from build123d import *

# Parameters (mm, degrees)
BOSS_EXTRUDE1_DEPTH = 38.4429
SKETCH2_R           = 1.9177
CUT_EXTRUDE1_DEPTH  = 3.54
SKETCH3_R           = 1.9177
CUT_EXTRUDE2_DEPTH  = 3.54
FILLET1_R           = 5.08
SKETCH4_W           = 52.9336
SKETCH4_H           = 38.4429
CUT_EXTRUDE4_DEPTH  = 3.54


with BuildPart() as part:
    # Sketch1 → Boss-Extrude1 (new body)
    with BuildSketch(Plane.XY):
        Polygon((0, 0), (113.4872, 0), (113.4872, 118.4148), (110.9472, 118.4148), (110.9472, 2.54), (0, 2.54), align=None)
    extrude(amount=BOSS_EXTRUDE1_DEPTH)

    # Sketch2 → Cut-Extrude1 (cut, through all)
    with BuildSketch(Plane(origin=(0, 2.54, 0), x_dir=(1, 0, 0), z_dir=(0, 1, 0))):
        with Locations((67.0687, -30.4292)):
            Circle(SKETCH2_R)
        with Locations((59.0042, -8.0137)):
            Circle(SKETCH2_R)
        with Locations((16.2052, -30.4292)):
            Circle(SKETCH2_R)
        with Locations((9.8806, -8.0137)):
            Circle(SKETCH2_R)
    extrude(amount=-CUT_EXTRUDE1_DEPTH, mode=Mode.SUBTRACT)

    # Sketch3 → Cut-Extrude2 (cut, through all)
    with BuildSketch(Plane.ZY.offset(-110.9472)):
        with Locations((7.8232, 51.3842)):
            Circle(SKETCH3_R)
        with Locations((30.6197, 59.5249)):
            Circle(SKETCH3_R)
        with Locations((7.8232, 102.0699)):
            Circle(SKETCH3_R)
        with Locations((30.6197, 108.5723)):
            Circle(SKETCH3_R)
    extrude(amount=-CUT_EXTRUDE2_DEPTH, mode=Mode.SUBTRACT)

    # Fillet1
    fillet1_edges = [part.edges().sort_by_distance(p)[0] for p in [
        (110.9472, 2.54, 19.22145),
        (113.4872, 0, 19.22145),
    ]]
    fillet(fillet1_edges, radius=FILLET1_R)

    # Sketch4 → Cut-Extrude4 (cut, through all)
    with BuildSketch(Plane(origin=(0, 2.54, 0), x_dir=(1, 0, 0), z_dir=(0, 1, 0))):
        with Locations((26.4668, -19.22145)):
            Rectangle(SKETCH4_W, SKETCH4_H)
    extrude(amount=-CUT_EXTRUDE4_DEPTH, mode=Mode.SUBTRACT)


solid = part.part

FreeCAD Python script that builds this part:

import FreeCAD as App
import Part
import Sketcher
Q = App.Units.Quantity


def edges_at(feature, points):
    """Names of the edges that pass closest to the given points."""
    edges = feature.Shape.Edges
    near = lambda p: min(range(len(edges)), key=lambda i: edges[i].distToShape(Part.Vertex(*p))[0])
    return sorted({f"Edge{near(p) + 1}" for p in points})


def add_polygon(sketch, points):
    """Adds a closed chain of lines whose ends are joined by coincident constraints."""
    first, n = sketch.GeometryCount, len(points)
    for a, b in zip(points, points[1:] + points[:1]):
        sketch.addGeometry(Part.LineSegment(App.Vector(*a, 0), App.Vector(*b, 0)), False)
    for i in range(n):
        sketch.addConstraint(Sketcher.Constraint("Coincident", first + i, 2, first + (i + 1) % n, 1))

doc = App.newDocument("Part")
params = doc.addObject("Spreadsheet::Sheet", "Params")
for row, (alias, value) in enumerate([
    ("sketch1_width", "0.1 in"),
    ("sketch1_width2", "4.468 in"),
    ("sketch1_height", "4.662 in"),
    ("pad1_length", "1.5135 in"),
    ("sketch2_diameter", "0.151 in"),
    ("sketch3_diameter", "0.151 in"),
    ("fillet_radius", "0.2 in"),
    ("sketch4_width", "2.084 in"),
], start=1):
    params.set(f"A{row}", alias)
    params.set(f"B{row}", "=" + value)
    params.setAlias(f"B{row}", alias)

body = doc.addObject("PartDesign::Body", "Body")

# Sketch on XY plane
sketch1 = doc.addObject("Sketcher::SketchObject", "Sketch")
body.addObject(sketch1)
sketch1.AttachmentSupport = (doc.XY_Plane, [""])
sketch1.MapMode = "FlatFace"
add_polygon(sketch1, [(0, 0), (113.5, 0), (113.5, 118.4), (110.9, 118.4), (110.9, 2.5), (0, 2.5)])  # lines 0-5
sketch1.addConstraint(Sketcher.Constraint("Horizontal", 0))
sketch1.addConstraint(Sketcher.Constraint("Vertical", 1))
sketch1.addConstraint(Sketcher.Constraint("Horizontal", 2))
sketch1.addConstraint(Sketcher.Constraint("Vertical", 3))
sketch1.addConstraint(Sketcher.Constraint("Horizontal", 4))
sketch1.addConstraint(Sketcher.Constraint("Vertical", 5))
sketch1.addConstraint(Sketcher.Constraint("Coincident", 5, 2, -1, 1))
sketch1.addConstraint(Sketcher.Constraint("Equal", 2, 5))
sketch1.addConstraint(Sketcher.Constraint("DistanceX", 2, 2, 2, 1, Q("0.1 in")))
sketch1.addConstraint(Sketcher.Constraint("DistanceX", 0, 1, 0, 2, Q("4.468 in")))
sketch1.addConstraint(Sketcher.Constraint("DistanceY", 1, 1, 1, 2, Q("4.662 in")))
sketch1.setExpression("Constraints[14]", "Params.sketch1_width")
sketch1.setExpression("Constraints[15]", "Params.sketch1_width2")
sketch1.setExpression("Constraints[16]", "Params.sketch1_height")
pad1 = doc.addObject("PartDesign::Pad", "Pad")
body.addObject(pad1)
pad1.Profile = sketch1
pad1.setExpression("Length", "Params.pad1_length")

# Sketch on XZ plane
sketch2 = doc.addObject("Sketcher::SketchObject", "Sketch001")
body.addObject(sketch2)
sketch2.AttachmentSupport = (doc.XZ_Plane, [""])
sketch2.MapMode = "FlatFace"
sketch2.AttachmentOffset = App.Placement(App.Vector(0, 0, -0.1 * 25.4), App.Rotation())
sketch2.addGeometry(Part.Circle(App.Vector(67.1, 30.4, 0), App.Vector(0, 0, 1), 1.9), False)
sketch2.addGeometry(Part.Circle(App.Vector(59, 8, 0), App.Vector(0, 0, 1), 1.9), False)
sketch2.addGeometry(Part.Circle(App.Vector(16.2, 30.4, 0), App.Vector(0, 0, 1), 1.9), False)
sketch2.addGeometry(Part.Circle(App.Vector(9.9, 8, 0), App.Vector(0, 0, 1), 1.9), False)
sketch2.addConstraint(Sketcher.Constraint("Equal", 0, 1))
sketch2.addConstraint(Sketcher.Constraint("Equal", 1, 2))
sketch2.addConstraint(Sketcher.Constraint("Equal", 2, 3))
sketch2.addConstraint(Sketcher.Constraint("Horizontal", 0, 3, 2, 3))
sketch2.addConstraint(Sketcher.Constraint("Horizontal", 1, 3, 3, 3))
sketch2.addConstraint(Sketcher.Constraint("Diameter", 0, Q("0.151 in")))
sketch2.addConstraint(Sketcher.Constraint("DistanceY", -1, 1, 0, 3, Q("1.198 in")))
sketch2.addConstraint(Sketcher.Constraint("DistanceX", -1, 1, 1, 3, Q("2.323 in")))
sketch2.addConstraint(Sketcher.Constraint("DistanceX", -1, 1, 2, 3, Q("0.638 in")))
sketch2.addConstraint(Sketcher.Constraint("DistanceX", -1, 1, 3, 3, Q("0.389 in")))
sketch2.addConstraint(Sketcher.Constraint("DistanceX", -1, 1, 0, 3, Q("2.6405 in")))
sketch2.addConstraint(Sketcher.Constraint("DistanceY", -1, 1, 1, 3, Q("0.3155 in")))
sketch2.setExpression("Constraints[5]", "Params.sketch2_diameter")
pocket1 = doc.addObject("PartDesign::Pocket", "Pocket")
body.addObject(pocket1)
pocket1.Profile = sketch2
pocket1.Type = "ThroughAll"
pocket1.Reversed = True

# Sketch on YZ plane
sketch3 = doc.addObject("Sketcher::SketchObject", "Sketch002")
body.addObject(sketch3)
sketch3.AttachmentSupport = (doc.YZ_Plane, [""])
sketch3.MapMode = "FlatFace"
sketch3.AttachmentOffset = App.Placement(App.Vector(0, 0, 4.368 * 25.4), App.Rotation())
sketch3.addGeometry(Part.Circle(App.Vector(51.4, 7.8, 0), App.Vector(0, 0, 1), 1.9), False)
sketch3.addGeometry(Part.Circle(App.Vector(59.5, 30.6, 0), App.Vector(0, 0, 1), 1.9), False)
sketch3.addGeometry(Part.Circle(App.Vector(102.1, 7.8, 0), App.Vector(0, 0, 1), 1.9), False)
sketch3.addGeometry(Part.Circle(App.Vector(108.6, 30.6, 0), App.Vector(0, 0, 1), 1.9), False)
sketch3.addConstraint(Sketcher.Constraint("Equal", 0, 1))
sketch3.addConstraint(Sketcher.Constraint("Equal", 1, 2))
sketch3.addConstraint(Sketcher.Constraint("Equal", 2, 3))
sketch3.addConstraint(Sketcher.Constraint("Horizontal", 0, 3, 2, 3))
sketch3.addConstraint(Sketcher.Constraint("Horizontal", 1, 3, 3, 3))
sketch3.addConstraint(Sketcher.Constraint("Diameter", 0, Q("0.151 in")))
sketch3.addConstraint(Sketcher.Constraint("DistanceX", -1, 1, 0, 3, Q("2.023 in")))
sketch3.addConstraint(Sketcher.Constraint("DistanceY", -1, 1, 0, 3, Q("0.308 in")))
sketch3.addConstraint(Sketcher.Constraint("DistanceX", 1, 3, 2, 3, Q("1.675 in")))
sketch3.addConstraint(Sketcher.Constraint("DistanceX", 2, 3, 3, 3, Q("0.256 in")))
sketch3.addConstraint(Sketcher.Constraint("DistanceX", -1, 1, 1, 3, Q("2.3435 in")))
sketch3.addConstraint(Sketcher.Constraint("DistanceY", -1, 1, 1, 3, Q("1.2055 in")))
sketch3.setExpression("Constraints[5]", "Params.sketch3_diameter")
pocket2 = doc.addObject("PartDesign::Pocket", "Pocket001")
body.addObject(pocket2)
pocket2.Profile = sketch3
pocket2.Type = "ThroughAll"
pocket2.Reversed = True
doc.recompute()

fillet = doc.addObject("PartDesign::Fillet", "Fillet")
body.addObject(fillet)
fillet.Base = (pocket2, edges_at(pocket2, [(110.947, 2.54, 19.221), (113.487, 0, 19.221)]))
fillet.setExpression("Radius", "Params.fillet_radius")

# Sketch on XZ plane
sketch4 = doc.addObject("Sketcher::SketchObject", "Sketch003")
body.addObject(sketch4)
sketch4.AttachmentSupport = (doc.XZ_Plane, [""])
sketch4.MapMode = "FlatFace"
sketch4.AttachmentOffset = App.Placement(App.Vector(0, 0, -0.1 * 25.4), App.Rotation())
add_polygon(sketch4, [(0, 0), (0, 38), (53, 38), (53, 0)])  # lines 0-3
sketch4.addConstraint(Sketcher.Constraint("Vertical", 0))
sketch4.addConstraint(Sketcher.Constraint("Horizontal", 1))
sketch4.addConstraint(Sketcher.Constraint("Vertical", 2))
sketch4.addConstraint(Sketcher.Constraint("Horizontal", 3))
sketch4.addConstraint(Sketcher.Constraint("Coincident", 3, 2, -1, 1))
sketch4.addConstraint(Sketcher.Constraint("DistanceX", 1, 1, 1, 2, Q("2.084 in")))
sketch4.addConstraint(Sketcher.Constraint("DistanceY", 0, 1, 0, 2, Q("1.5135 in")))
sketch4.setExpression("Constraints[9]", "Params.sketch4_width")
pocket3 = doc.addObject("PartDesign::Pocket", "Pocket002")
body.addObject(pocket3)
pocket3.Profile = sketch4
pocket3.Type = "ThroughAll"
pocket3.Reversed = True

doc.recompute()
